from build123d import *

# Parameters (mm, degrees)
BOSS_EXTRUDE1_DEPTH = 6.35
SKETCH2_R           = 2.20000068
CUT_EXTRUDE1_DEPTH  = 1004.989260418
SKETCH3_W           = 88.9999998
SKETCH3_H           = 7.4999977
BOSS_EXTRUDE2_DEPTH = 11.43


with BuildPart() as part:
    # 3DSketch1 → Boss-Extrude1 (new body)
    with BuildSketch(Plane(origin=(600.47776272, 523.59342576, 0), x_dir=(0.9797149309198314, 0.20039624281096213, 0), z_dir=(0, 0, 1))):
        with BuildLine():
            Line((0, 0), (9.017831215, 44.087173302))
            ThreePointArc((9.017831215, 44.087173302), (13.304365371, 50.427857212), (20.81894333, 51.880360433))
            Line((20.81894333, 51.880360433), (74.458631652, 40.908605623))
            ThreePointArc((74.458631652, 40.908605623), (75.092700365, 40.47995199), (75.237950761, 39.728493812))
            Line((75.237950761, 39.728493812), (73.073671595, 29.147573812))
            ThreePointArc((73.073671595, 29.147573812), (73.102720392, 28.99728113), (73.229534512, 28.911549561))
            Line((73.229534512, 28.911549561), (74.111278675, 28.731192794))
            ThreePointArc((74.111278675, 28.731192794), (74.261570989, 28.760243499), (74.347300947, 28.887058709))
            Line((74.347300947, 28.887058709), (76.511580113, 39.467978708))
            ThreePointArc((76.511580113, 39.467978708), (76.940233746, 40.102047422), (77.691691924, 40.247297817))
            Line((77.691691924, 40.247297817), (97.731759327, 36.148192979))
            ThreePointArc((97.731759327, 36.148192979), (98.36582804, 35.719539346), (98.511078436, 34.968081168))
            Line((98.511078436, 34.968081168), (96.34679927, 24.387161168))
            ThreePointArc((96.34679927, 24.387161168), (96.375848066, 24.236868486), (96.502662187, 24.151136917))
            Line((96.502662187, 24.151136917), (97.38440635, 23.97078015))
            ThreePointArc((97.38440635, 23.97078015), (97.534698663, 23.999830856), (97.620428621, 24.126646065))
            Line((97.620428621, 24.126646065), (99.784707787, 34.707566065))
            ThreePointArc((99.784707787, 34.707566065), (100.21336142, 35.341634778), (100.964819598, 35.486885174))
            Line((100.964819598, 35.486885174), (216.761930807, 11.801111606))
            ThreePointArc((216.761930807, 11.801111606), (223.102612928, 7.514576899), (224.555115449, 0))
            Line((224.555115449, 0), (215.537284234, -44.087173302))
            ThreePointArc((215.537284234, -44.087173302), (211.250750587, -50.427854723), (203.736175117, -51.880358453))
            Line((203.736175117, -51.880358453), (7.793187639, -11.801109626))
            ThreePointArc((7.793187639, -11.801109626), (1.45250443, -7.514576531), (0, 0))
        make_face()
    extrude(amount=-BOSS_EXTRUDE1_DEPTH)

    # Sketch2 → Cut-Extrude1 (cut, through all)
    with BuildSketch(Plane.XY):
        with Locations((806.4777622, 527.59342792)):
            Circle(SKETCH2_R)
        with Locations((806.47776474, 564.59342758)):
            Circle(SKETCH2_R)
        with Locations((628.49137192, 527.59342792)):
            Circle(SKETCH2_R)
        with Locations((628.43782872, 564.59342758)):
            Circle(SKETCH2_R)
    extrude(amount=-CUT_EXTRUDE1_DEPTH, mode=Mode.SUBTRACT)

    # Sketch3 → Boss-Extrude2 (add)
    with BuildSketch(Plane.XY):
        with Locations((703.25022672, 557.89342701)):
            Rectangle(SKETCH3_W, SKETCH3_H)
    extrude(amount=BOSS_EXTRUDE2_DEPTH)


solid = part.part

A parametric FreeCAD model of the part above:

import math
import FreeCAD as App
import Part
import Sketcher

V = App.Vector


def add_polygon(sketch, points):
    """Adds a closed chain of lines whose ends are joined by coincident constraints."""
    first, n = sketch.GeometryCount, len(points)
    for a, b in zip(points, points[1:] + points[:1]):
        sketch.addGeometry(Part.LineSegment(App.Vector(*a, 0), App.Vector(*b, 0)), False)
    for i in range(n):
        sketch.addConstraint(Sketcher.Constraint("Coincident", first + i, 2, first + (i + 1) % n, 1))

doc = App.newDocument("Part")
body = doc.addObject("PartDesign::Body", "Body")

sketch1 = body.newObject("Sketcher::SketchObject", "Sketch")
sketch1.AttachmentSupport = (doc.getObject("XY_Plane"), [""])
sketch1.MapMode = "FlatFace"
sketch1.addGeometry([
    Part.LineSegment(V(600.477763, 568.593427, 0), V(600.477763, 523.593426, 0)),
    Part.ArcOfCircle(Part.Circle(V(610.477763, 523.593428, 0), V(0, 0, 1), 10), math.radians(-179.999985), math.radians(-90)),
    Part.LineSegment(V(610.477763, 513.593428, 0), V(810.477764, 513.593428, 0)),
    Part.ArcOfCircle(Part.Circle(V(810.477762, 523.593428, 0), V(0, 0, 1), 10), math.radians(-89.999985), math.radians(-0.000015)),
    Part.LineSegment(V(820.477762, 523.593426, 0), V(820.477762, 568.593427, 0)),
    Part.ArcOfCircle(Part.Circle(V(810.477762, 568.593427, 0), V(0, 0, 1), 10), math.radians(0), math.radians(89.999985)),
    Part.LineSegment(V(810.477764, 578.593428, 0), V(692.283066, 578.593428, 0)),
    Part.ArcOfCircle(Part.Circle(V(692.283066, 577.593427, 0), V(0, 0, 1), 1.000001), math.radians(90), math.radians(180)),
    Part.LineSegment(V(691.283065, 577.593427, 0), V(691.283065, 566.793428, 0)),
    Part.ArcOfCircle(Part.Circle(V(691.083065, 566.793426, 0), V(0, 0, 1), 0.2), math.radians(-89.999999), math.radians(0.000728)),
    Part.LineSegment(V(691.083065, 566.593426, 0), V(690.183065, 566.593426, 0)),
    Part.ArcOfCircle(Part.Circle(V(690.183065, 566.793426, 0), V(0, 0, 1), 0.2), math.radians(179.999272), math.radians(270.000001)),
    Part.LineSegment(V(689.983065, 566.793428, 0), V(689.983065, 577.593427, 0)),
    Part.ArcOfCircle(Part.Circle(V(688.983065, 577.593427, 0), V(0, 0, 1), 1.000001), math.radians(0), math.radians(90)),
    Part.LineSegment(V(688.983065, 578.593428, 0), V(668.528066, 578.593428, 0)),
    Part.ArcOfCircle(Part.Circle(V(668.528066, 577.593427, 0), V(0, 0, 1), 1.000001), math.radians(90), math.radians(180)),
    Part.LineSegment(V(667.528065, 577.593427, 0), V(667.528066, 566.793428, 0)),
    Part.ArcOfCircle(Part.Circle(V(667.328066, 566.793426, 0), V(0, 0, 1), 0.2), math.radians(-90), math.radians(0.000728)),
    Part.LineSegment(V(667.328066, 566.593426, 0), V(666.428065, 566.593426, 0)),
    Part.ArcOfCircle(Part.Circle(V(666.428065, 566.793426, 0), V(0, 0, 1), 0.2), math.radians(179.999273), math.radians(269.999999)),
    Part.LineSegment(V(666.228066, 566.793428, 0), V(666.228066, 577.593427, 0)),
    Part.ArcOfCircle(Part.Circle(V(665.228065, 577.593427, 0), V(0, 0, 1), 1.000001), math.radians(0), math.radians(90)),
    Part.LineSegment(V(665.228065, 578.593428, 0), V(610.477763, 578.593428, 0)),
    Part.ArcOfCircle(Part.Circle(V(610.477763, 568.593427, 0), V(0, 0, 1), 10), math.radians(90), math.radians(180)),
], False)
sketch1.addConstraint([
    Sketcher.Constraint("Tangent", 0, 2, 1, 1),
    Sketcher.Constraint("Tangent", 1, 2, 2, 1),
    Sketcher.Constraint("Tangent", 2, 2, 3, 1),
    Sketcher.Constraint("Tangent", 3, 2, 4, 1),
    Sketcher.Constraint("Tangent", 4, 2, 5, 1),
    Sketcher.Constraint("Tangent", 5, 2, 6, 1),
    Sketcher.Constraint("Tangent", 6, 2, 7, 1),
    Sketcher.Constraint("Tangent", 7, 2, 8, 1),
    Sketcher.Constraint("Coincident", 8, 2, 9, 2),
    Sketcher.Constraint("Tangent", 9, 1, 10, 1),
    Sketcher.Constraint("Tangent", 10, 2, 11, 2),
    Sketcher.Constraint("Coincident", 11, 1, 12, 1),
    Sketcher.Constraint("Tangent", 12, 2, 13, 1),
    Sketcher.Constraint("Tangent", 13, 2, 14, 1),
    Sketcher.Constraint("Tangent", 14, 2, 15, 1),
    Sketcher.Constraint("Tangent", 15, 2, 16, 1),
    Sketcher.Constraint("Coincident", 16, 2, 17, 2),
    Sketcher.Constraint("Tangent", 17, 1, 18, 1),
    Sketcher.Constraint("Tangent", 18, 2, 19, 2),
    Sketcher.Constraint("Coincident", 19, 1, 20, 1),
    Sketcher.Constraint("Tangent", 20, 2, 21, 1),
    Sketcher.Constraint("Tangent", 21, 2, 22, 1),
    Sketcher.Constraint("Tangent", 22, 2, 23, 1),
    Sketcher.Constraint("Tangent", 23, 2, 0, 1),
    Sketcher.Constraint("Vertical", 0),
    Sketcher.Constraint("Horizontal", 2),
    Sketcher.Constraint("Vertical", 4),
    Sketcher.Constraint("Horizontal", 6),
    Sketcher.Constraint("Vertical", 8),
    Sketcher.Constraint("Horizontal", 10),
    Sketcher.Constraint("Vertical", 12),
    Sketcher.Constraint("Horizontal", 14),
    Sketcher.Constraint("Vertical", 16),
    Sketcher.Constraint("Horizontal", 18),
    Sketcher.Constraint("Vertical", 20),
    Sketcher.Constraint("Horizontal", 22),
    Sketcher.Constraint("Equal", 1, 3),
    Sketcher.Constraint("Equal", 3, 5),
    Sketcher.Constraint("Equal", 9, 11),
    Sketcher.Constraint("Equal", 7, 13),
    Sketcher.Constraint("Equal", 13, 15),
    Sketcher.Constraint("Equal", 11, 17),
    Sketcher.Constraint("Equal", 17, 19),
    Sketcher.Constraint("Equal", 15, 21),
    Sketcher.Constraint("Equal", 5, 23),
    Sketcher.Constraint("Horizontal", 7, 3, 13, 3),
    Sketcher.Constraint("Horizontal", 11, 3, 17, 3),
    Sketcher.Constraint("Horizontal", 15, 3, 21, 3),
    Sketcher.Constraint("Horizontal", 8, 2, 11, 1),
    Sketcher.Constraint("Horizontal", 11, 1, 16, 2),
    Sketcher.Constraint("Horizontal", 16, 2, 19, 1),
    Sketcher.Constraint("Equal", 10, 18),
    Sketcher.Constraint("Radius", 1, 10.0),
    Sketcher.Constraint("Radius", 7, 1.000001),
    Sketcher.Constraint("Radius", 9, 0.2),
    Sketcher.Constraint("DistanceX", 2, 1, 2, 2, 200.000001),
    Sketcher.Constraint("DistanceY", 0, 2, 0, 1, 45.000001),
    Sketcher.Constraint("DistanceX", 10, 2, 10, 1, 0.900001),
    Sketcher.Constraint("DistanceY", 8, 2, 8, 1, 10.799999),
    Sketcher.Constraint("DistanceY", 9, 1, 7, 2, 11.000001),
    Sketcher.Constraint("DistanceX", 14, 2, 14, 1, 20.454998),
    Sketcher.Constraint("DistanceX", 6, 2, 6, 1, 118.194699),
    Sketcher.Constraint("DistanceY", -1, 1, 1, 3, 523.593428),
    Sketcher.Constraint("DistanceX", -1, 1, 3, 3, 810.477762),
])
pad1 = body.newObject("PartDesign::Pad", "Pad")
pad1.Profile = sketch1
pad1.Length = 6.35
pad1.Reversed = True

sketch2 = body.newObject("Sketcher::SketchObject", "Sketch001")
sketch2.AttachmentSupport = (doc.getObject("XY_Plane"), [""])
sketch2.MapMode = "FlatFace"
sketch2.addGeometry([
    Part.Circle(V(806.477762, 527.593428, 0), V(0, 0, 1), 2.200001),
    Part.Circle(V(806.477765, 564.593428, 0), V(0, 0, 1), 2.200001),
    Part.Circle(V(628.491372, 527.593428, 0), V(0, 0, 1), 2.200001),
    Part.Circle(V(628.437829, 564.593428, 0), V(0, 0, 1), 2.200001),
], False)
sketch2.addConstraint([
    Sketcher.Constraint("Equal", 0, 1),
    Sketcher.Constraint("Equal", 1, 2),
    Sketcher.Constraint("Equal", 2, 3),
    Sketcher.Constraint("Horizontal", 0, 3, 2, 3),
    Sketcher.Constraint("Horizontal", 1, 3, 3, 3),
    Sketcher.Constraint("Diameter", 0, 4.400001),
    Sketcher.Constraint("DistanceY", 0, 3, 1, 3, 37.0),
    Sketcher.Constraint("DistanceX", -1, 1, 2, 3, 628.491372),
    Sketcher.Constraint("DistanceX", -1, 1, 3, 3, 628.437829),
    Sketcher.Constraint("DistanceX", 2, 3, 0, 3, 177.98639),
    Sketcher.Constraint("DistanceY", -1, 1, 0, 3, 527.593428),
    Sketcher.Constraint("DistanceX", -1, 1, 1, 3, 806.477765),
])
pocket1 = body.newObject("PartDesign::Pocket", "Pocket")
pocket1.Profile = sketch2
pocket1.Type = "ThroughAll"

sketch3 = body.newObject("Sketcher::SketchObject", "Sketch002")
sketch3.AttachmentSupport = (doc.getObject("XY_Plane"), [""])
sketch3.MapMode = "FlatFace"
add_polygon(sketch3, [(658.750227, 561.643426), (658.750227, 554.143428), (747.750227, 554.143428), (747.750227, 561.643426)])
sketch3.addConstraint([
    Sketcher.Constraint("Vertical", 0),
    Sketcher.Constraint("Horizontal", 1),
    Sketcher.Constraint("Vertical", 2),
    Sketcher.Constraint("Horizontal", 3),
    Sketcher.Constraint("DistanceX", 1, 1, 1, 2, 89.0),
    Sketcher.Constraint("DistanceY", 0, 2, 0, 1, 7.499998),
    Sketcher.Constraint("DistanceY", -1, 1, 0, 2, 554.143428),
    Sketcher.Constraint("DistanceX", -1, 1, 0, 2, 658.750227),
])
pad2 = body.newObject("PartDesign::Pad", "Pad001")
pad2.Profile = sketch3
pad2.Length = 11.43

doc.recompute()
